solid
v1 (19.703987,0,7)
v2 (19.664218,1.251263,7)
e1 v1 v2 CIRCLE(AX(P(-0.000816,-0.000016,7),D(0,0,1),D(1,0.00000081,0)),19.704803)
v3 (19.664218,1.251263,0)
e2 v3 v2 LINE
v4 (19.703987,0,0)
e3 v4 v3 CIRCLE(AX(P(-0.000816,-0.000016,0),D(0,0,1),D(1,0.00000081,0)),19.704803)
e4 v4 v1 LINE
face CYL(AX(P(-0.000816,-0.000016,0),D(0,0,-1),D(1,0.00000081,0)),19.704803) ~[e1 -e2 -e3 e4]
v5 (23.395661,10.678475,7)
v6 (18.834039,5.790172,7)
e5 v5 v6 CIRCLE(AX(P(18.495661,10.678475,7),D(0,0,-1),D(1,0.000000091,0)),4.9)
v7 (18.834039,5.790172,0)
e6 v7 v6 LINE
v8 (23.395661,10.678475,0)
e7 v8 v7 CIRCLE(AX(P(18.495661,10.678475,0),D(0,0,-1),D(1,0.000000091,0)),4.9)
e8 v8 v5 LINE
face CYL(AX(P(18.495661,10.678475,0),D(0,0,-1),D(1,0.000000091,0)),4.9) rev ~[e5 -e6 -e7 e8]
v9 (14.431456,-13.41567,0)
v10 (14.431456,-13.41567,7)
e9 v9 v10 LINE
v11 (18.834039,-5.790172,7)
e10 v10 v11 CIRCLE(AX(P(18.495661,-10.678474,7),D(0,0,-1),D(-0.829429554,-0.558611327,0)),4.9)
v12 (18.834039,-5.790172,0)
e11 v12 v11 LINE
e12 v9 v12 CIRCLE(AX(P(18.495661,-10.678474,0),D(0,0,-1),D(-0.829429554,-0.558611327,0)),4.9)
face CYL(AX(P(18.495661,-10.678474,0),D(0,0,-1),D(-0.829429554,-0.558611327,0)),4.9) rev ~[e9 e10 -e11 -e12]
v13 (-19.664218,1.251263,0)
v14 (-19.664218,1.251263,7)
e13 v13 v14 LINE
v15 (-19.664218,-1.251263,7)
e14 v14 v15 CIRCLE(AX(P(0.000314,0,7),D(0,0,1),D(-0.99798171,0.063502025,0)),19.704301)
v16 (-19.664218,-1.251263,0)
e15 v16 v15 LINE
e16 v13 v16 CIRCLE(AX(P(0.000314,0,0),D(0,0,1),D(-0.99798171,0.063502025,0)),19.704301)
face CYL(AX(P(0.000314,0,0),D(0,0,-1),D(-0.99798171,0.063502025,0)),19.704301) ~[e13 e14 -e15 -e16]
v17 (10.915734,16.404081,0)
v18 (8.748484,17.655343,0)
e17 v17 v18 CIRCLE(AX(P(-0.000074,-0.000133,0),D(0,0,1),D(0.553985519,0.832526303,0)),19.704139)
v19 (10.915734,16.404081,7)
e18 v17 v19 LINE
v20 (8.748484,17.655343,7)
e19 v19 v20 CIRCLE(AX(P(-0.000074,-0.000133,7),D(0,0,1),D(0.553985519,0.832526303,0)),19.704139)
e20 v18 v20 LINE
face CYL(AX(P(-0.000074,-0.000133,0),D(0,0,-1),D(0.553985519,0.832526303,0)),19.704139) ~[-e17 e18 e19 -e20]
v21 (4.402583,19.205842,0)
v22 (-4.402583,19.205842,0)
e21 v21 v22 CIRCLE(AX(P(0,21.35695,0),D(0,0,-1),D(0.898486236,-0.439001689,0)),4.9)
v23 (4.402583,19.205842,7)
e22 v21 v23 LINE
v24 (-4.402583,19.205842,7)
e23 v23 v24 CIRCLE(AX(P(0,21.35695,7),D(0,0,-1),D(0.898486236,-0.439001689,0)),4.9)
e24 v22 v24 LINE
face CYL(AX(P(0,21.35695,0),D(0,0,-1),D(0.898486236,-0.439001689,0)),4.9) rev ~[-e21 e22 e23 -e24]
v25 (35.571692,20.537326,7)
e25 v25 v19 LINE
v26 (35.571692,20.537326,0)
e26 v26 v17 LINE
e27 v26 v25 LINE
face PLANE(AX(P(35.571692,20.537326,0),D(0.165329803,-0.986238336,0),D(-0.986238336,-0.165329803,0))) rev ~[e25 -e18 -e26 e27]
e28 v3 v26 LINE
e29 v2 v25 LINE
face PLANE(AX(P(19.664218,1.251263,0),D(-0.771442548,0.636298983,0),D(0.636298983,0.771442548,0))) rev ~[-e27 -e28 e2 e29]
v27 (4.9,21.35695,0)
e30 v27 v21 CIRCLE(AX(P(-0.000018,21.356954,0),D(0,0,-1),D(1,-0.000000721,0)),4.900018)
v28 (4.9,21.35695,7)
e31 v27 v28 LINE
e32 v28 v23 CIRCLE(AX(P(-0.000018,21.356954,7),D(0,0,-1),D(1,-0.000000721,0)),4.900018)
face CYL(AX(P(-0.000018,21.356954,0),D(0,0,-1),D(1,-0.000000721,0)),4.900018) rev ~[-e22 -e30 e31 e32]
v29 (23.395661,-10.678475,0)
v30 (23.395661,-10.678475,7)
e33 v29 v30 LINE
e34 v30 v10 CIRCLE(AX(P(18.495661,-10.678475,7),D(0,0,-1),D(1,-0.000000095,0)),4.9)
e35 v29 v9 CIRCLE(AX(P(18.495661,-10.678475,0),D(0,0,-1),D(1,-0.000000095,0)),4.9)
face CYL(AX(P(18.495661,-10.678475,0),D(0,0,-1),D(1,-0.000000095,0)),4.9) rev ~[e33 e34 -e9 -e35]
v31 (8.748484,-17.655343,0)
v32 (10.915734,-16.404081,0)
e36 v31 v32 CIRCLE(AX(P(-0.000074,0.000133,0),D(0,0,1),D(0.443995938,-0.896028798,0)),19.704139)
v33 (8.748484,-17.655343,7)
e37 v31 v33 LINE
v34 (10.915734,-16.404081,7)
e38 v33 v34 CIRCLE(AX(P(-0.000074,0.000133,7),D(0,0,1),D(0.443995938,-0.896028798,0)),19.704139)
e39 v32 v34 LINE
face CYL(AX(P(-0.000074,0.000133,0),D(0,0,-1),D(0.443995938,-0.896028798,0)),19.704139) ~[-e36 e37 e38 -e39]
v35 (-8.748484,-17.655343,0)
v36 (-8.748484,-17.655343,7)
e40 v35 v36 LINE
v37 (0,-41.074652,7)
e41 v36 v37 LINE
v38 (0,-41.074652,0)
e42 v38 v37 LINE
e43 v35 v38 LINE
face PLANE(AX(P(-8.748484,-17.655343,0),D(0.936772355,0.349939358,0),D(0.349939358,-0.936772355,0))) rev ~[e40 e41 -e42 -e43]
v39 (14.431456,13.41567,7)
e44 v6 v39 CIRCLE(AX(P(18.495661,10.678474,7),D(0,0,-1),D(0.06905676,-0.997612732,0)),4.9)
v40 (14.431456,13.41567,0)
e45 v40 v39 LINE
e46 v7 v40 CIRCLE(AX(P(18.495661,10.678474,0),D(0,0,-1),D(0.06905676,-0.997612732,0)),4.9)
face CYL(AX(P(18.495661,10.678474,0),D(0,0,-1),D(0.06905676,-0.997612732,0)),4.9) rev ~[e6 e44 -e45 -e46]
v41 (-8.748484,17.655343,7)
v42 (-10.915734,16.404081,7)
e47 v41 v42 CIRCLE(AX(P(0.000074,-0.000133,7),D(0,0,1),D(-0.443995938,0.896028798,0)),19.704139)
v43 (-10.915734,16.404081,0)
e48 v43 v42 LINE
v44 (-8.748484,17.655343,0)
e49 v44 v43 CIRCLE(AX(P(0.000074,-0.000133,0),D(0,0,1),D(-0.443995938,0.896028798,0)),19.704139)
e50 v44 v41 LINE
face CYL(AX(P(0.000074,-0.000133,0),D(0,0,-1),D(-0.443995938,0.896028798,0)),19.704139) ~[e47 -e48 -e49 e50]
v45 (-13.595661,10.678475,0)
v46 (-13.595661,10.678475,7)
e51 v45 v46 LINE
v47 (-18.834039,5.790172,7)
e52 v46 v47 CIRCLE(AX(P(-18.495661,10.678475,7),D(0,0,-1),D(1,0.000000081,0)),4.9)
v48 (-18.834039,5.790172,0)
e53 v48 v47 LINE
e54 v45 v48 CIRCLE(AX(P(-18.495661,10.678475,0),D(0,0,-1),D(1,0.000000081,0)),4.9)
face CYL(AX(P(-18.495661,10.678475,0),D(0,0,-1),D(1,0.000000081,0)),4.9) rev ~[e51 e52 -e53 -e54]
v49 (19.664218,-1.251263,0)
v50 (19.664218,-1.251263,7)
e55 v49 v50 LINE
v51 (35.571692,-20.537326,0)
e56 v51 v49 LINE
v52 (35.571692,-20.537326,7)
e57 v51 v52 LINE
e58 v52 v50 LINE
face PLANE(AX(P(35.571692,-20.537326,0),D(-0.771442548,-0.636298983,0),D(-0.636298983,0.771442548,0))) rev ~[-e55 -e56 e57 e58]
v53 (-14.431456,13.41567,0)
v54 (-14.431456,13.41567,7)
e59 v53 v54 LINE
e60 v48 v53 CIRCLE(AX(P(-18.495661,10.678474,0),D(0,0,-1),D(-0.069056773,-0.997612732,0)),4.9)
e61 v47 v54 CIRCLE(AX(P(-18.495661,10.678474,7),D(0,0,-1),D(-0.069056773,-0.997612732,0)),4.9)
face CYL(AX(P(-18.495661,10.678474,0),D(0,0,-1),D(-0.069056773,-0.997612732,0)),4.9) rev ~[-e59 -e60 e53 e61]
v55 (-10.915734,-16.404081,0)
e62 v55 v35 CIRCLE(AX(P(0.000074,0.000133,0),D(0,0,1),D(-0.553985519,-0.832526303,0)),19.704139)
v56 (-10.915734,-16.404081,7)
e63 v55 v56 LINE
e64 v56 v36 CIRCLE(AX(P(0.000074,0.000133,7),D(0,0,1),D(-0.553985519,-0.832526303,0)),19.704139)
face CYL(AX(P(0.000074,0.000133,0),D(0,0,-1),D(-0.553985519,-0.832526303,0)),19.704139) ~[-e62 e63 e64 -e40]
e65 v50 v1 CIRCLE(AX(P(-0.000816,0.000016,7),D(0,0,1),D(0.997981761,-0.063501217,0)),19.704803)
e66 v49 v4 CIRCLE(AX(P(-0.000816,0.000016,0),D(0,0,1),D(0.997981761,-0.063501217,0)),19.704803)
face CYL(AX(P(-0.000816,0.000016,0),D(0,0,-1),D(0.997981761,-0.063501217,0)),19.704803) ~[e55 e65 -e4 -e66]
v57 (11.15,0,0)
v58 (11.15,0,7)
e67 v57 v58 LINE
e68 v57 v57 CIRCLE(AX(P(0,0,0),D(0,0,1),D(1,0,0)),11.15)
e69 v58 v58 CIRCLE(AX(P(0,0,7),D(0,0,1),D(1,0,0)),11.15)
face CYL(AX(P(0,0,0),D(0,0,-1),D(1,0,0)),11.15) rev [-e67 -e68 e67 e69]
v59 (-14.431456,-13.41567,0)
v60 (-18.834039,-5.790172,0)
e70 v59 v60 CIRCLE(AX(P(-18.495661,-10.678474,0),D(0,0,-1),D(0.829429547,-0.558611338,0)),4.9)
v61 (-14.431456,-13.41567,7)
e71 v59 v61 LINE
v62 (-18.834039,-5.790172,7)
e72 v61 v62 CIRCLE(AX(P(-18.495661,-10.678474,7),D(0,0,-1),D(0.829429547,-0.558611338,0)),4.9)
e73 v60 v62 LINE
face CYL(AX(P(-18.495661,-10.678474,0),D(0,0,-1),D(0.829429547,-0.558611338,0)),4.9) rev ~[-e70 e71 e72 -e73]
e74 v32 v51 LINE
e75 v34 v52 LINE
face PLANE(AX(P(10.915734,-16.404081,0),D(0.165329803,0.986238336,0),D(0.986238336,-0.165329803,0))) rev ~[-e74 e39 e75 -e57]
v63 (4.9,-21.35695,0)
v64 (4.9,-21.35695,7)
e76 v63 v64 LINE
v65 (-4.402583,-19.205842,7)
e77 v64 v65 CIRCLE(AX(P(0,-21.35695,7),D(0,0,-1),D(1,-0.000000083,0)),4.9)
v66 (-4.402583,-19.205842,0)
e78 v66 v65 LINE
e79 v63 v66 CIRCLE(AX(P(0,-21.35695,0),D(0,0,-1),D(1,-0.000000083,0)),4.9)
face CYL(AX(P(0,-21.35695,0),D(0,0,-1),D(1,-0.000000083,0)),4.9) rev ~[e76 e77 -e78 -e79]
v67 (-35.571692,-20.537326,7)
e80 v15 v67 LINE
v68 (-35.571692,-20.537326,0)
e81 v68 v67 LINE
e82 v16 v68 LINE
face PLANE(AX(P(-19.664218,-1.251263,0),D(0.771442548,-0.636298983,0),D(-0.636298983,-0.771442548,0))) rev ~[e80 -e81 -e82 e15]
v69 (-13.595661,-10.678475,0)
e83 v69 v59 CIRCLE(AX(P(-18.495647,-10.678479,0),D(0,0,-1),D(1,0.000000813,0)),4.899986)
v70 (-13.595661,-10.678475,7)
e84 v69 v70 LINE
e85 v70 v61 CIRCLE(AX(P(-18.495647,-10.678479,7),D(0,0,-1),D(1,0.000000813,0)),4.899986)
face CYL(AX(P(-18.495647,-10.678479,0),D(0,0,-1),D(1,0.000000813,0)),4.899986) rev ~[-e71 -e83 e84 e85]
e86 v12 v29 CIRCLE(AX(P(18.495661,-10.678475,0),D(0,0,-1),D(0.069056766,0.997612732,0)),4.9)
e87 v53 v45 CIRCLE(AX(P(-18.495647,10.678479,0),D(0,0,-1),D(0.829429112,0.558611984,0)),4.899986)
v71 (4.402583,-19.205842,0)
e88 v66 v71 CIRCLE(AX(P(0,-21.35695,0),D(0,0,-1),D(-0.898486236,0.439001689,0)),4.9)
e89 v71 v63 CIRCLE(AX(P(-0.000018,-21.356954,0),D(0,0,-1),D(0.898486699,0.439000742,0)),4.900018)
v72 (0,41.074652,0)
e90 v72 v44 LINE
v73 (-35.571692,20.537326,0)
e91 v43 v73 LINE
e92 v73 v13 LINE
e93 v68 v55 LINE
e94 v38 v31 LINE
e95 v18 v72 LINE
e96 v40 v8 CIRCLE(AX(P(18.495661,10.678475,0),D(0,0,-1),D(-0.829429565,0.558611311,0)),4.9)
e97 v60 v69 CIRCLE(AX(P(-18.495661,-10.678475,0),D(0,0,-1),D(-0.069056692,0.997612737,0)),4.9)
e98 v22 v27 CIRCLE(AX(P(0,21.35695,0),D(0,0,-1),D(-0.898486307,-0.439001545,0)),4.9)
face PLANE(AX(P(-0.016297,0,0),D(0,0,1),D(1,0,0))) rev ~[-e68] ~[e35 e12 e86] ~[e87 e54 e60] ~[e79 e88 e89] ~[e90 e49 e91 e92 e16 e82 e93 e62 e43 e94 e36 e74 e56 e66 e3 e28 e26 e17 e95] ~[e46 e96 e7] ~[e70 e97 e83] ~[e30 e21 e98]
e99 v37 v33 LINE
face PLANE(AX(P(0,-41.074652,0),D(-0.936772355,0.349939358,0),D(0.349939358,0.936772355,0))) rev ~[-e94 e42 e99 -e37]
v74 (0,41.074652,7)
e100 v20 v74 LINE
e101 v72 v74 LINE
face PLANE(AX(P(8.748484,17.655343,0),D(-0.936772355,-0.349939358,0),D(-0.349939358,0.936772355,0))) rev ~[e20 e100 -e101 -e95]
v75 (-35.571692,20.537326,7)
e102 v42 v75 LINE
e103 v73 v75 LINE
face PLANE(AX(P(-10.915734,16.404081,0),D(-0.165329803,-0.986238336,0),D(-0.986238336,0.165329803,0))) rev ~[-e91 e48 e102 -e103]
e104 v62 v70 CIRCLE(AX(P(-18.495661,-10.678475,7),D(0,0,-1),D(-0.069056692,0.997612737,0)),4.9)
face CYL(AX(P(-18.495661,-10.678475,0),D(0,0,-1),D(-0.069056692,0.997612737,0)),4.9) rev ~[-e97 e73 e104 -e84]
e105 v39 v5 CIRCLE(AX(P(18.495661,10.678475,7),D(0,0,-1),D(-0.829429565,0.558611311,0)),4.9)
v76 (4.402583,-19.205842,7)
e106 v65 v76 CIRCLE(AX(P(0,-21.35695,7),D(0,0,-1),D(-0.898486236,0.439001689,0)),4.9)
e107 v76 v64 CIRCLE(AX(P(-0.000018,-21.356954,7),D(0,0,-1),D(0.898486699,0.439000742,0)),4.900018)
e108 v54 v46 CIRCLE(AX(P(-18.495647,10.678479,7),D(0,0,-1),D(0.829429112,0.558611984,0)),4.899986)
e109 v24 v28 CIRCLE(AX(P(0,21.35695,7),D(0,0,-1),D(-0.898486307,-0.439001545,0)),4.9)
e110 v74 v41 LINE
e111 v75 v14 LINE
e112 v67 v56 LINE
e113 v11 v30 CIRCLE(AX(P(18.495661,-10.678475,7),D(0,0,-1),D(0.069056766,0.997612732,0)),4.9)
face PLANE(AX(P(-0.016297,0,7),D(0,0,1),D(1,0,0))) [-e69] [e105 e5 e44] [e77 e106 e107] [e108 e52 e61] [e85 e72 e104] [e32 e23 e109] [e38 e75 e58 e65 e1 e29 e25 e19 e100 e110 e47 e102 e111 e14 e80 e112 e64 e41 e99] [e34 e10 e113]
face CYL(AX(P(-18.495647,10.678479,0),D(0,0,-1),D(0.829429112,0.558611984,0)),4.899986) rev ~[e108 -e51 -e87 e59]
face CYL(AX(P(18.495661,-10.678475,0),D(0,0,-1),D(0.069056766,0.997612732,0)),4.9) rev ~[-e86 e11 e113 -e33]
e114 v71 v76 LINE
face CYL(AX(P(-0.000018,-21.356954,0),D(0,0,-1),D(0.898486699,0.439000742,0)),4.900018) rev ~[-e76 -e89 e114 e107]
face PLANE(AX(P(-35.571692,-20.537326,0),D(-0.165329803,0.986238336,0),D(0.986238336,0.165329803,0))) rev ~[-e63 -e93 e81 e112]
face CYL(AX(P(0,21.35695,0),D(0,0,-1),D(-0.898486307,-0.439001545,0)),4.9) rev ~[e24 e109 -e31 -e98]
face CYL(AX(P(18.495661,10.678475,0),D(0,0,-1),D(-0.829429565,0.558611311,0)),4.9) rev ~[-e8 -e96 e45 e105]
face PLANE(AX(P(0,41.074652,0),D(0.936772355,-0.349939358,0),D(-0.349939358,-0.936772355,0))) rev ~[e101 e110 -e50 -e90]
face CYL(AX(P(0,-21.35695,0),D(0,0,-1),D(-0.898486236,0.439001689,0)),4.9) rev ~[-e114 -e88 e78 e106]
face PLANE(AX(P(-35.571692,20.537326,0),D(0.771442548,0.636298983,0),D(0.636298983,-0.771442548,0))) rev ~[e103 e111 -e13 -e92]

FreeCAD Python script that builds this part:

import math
import FreeCAD as App
import Part
import Sketcher

doc = App.newDocument("Part")
body = doc.addObject("PartDesign::Body", "Body")

sketch1 = doc.addObject("Sketcher::SketchObject", "Sketch")
body.addObject(sketch1)
sketch1.AttachmentSupport = (doc.XY_Plane, [""])
sketch1.MapMode = "FlatFace"
sketch1.addGeometry([
    Part.ArcOfCircle(Part.Circle(App.Vector(-0.000816, 0.000016, 0), App.Vector(0, 0, 1), 19.704803), math.radians(-3.640801), math.radians(-0.000046)),
    Part.ArcOfCircle(Part.Circle(App.Vector(-0.000816, -0.000016, 0), App.Vector(0, 0, 1), 19.704803), math.radians(0.000046), math.radians(3.640801)),
    Part.LineSegment(App.Vector(19.664218, 1.251263, 0), App.Vector(35.571692, 20.537326, 0)),
    Part.LineSegment(App.Vector(35.571692, 20.537326, 0), App.Vector(10.915734, 16.404081, 0)),
    Part.ArcOfCircle(Part.Circle(App.Vector(-0.000074, -0.000133, 0), App.Vector(0, 0, 1), 19.704139), math.radians(56.359132), math.radians(63.640883)),
    Part.LineSegment(App.Vector(8.748484, 17.655343, 0), App.Vector(0, 41.074652, 0)),
    Part.LineSegment(App.Vector(0, 41.074652, 0), App.Vector(-8.748484, 17.655343, 0)),
    Part.ArcOfCircle(Part.Circle(App.Vector(0.000074, -0.000133, 0), App.Vector(0, 0, 1), 19.704139), math.radians(116.359117), math.radians(123.640868)),
    Part.LineSegment(App.Vector(-10.915734, 16.404081, 0), App.Vector(-35.571692, 20.537326, 0)),
    Part.LineSegment(App.Vector(-35.571692, 20.537326, 0), App.Vector(-19.664218, 1.251263, 0)),
    Part.ArcOfCircle(Part.Circle(App.Vector(0.000314, 0, 0), App.Vector(0, 0, 1), 19.704301), math.radians(176.359152), math.radians(183.640848)),
    Part.LineSegment(App.Vector(-19.664218, -1.251263, 0), App.Vector(-35.571692, -20.537326, 0)),
    Part.LineSegment(App.Vector(-35.571692, -20.537326, 0), App.Vector(-10.915734, -16.404081, 0)),
    Part.ArcOfCircle(Part.Circle(App.Vector(0.000074, 0.000133, 0), App.Vector(0, 0, 1), 19.704139), math.radians(-123.640868), math.radians(-116.359117)),
    Part.LineSegment(App.Vector(-8.748484, -17.655343, 0), App.Vector(0, -41.074652, 0)),
    Part.LineSegment(App.Vector(0, -41.074652, 0), App.Vector(8.748484, -17.655343, 0)),
    Part.ArcOfCircle(Part.Circle(App.Vector(-0.000074, 0.000133, 0), App.Vector(0, 0, 1), 19.704139), math.radians(-63.640883), math.radians(-56.359132)),
    Part.LineSegment(App.Vector(10.915734, -16.404081, 0), App.Vector(35.571692, -20.537326, 0)),
    Part.LineSegment(App.Vector(35.571692, -20.537326, 0), App.Vector(19.664218, -1.251263, 0)),
    Part.ArcOfCircle(Part.Circle(App.Vector(0, -21.35695, 0), App.Vector(0, 0, 1), 4.9), math.radians(26.040202), math.radians(153.959798)),
    Part.ArcOfCircle(Part.Circle(App.Vector(-0.000018, -21.356954, 0), App.Vector(0, 0, 1), 4.900018), math.radians(0.000041), math.radians(26.040142)),
    Part.ArcOfCircle(Part.Circle(App.Vector(0, -21.35695, 0), App.Vector(0, 0, 1), 4.9), math.radians(153.959807), math.radians(359.999995)),
    Part.ArcOfCircle(Part.Circle(App.Vector(18.495661, -10.678474, 0), App.Vector(0, 0, 1), 4.9), math.radians(86.040188), math.radians(213.959816)),
    Part.ArcOfCircle(Part.Circle(App.Vector(18.495661, -10.678475, 0), App.Vector(0, 0, 1), 4.9), math.radians(-0.000005), math.radians(86.040187)),
    Part.ArcOfCircle(Part.Circle(App.Vector(18.495661, -10.678475, 0), App.Vector(0, 0, 1), 4.9), math.radians(-146.040185), math.radians(-0.000005)),
    Part.ArcOfCircle(Part.Circle(App.Vector(-18.495661, -10.678475, 0), App.Vector(0, 0, 1), 4.9), math.radians(-0.000005), math.radians(93.959809)),
    Part.ArcOfCircle(Part.Circle(App.Vector(-18.495647, -10.678479, 0), App.Vector(0, 0, 1), 4.899986), math.radians(-33.959861), math.radians(0.000047)),
    Part.ArcOfCircle(Part.Circle(App.Vector(-18.495661, -10.678474, 0), App.Vector(0, 0, 1), 4.9), math.radians(93.959813), math.radians(326.040183)),
    Part.ArcOfCircle(Part.Circle(App.Vector(-18.495647, 10.678479, 0), App.Vector(0, 0, 1), 4.899986), math.radians(-0.000047), math.radians(33.959861)),
    Part.ArcOfCircle(Part.Circle(App.Vector(-18.495661, 10.678475, 0), App.Vector(0, 0, 1), 4.9), math.radians(-93.959809), math.radians(0.000005)),
    Part.ArcOfCircle(Part.Circle(App.Vector(-18.495661, 10.678474, 0), App.Vector(0, 0, 1), 4.9), math.radians(33.959817), math.radians(266.040187)),
    Part.ArcOfCircle(Part.Circle(App.Vector(0, 21.35695, 0), App.Vector(0, 0, 1), 4.9), math.radians(-153.959798), math.radians(-26.040202)),
    Part.ArcOfCircle(Part.Circle(App.Vector(0, 21.35695, 0), App.Vector(0, 0, 1), 4.9), math.radians(0.000005), math.radians(206.040193)),
    Part.ArcOfCircle(Part.Circle(App.Vector(-0.000018, 21.356954, 0), App.Vector(0, 0, 1), 4.900018), math.radians(-26.040142), math.radians(-0.000041)),
    Part.ArcOfCircle(Part.Circle(App.Vector(18.495661, 10.678474, 0), App.Vector(0, 0, 1), 4.9), math.radians(146.040184), math.radians(273.959812)),
    Part.ArcOfCircle(Part.Circle(App.Vector(18.495661, 10.678475, 0), App.Vector(0, 0, 1), 4.9), math.radians(0.000005), math.radians(146.040185)),
    Part.ArcOfCircle(Part.Circle(App.Vector(18.495661, 10.678475, 0), App.Vector(0, 0, 1), 4.9), math.radians(-86.040187), math.radians(0.000005)),
    Part.Circle(App.Vector(0, 0, 0), App.Vector(0, 0, 1), 11.15),
], False)
sketch1.addConstraint([
    Sketcher.Constraint("Tangent", 0, 2, 1, 1),
    Sketcher.Constraint("Coincident", 1, 2, 2, 1),
    Sketcher.Constraint("Coincident", 2, 2, 3, 1),
    Sketcher.Constraint("Coincident", 3, 2, 4, 1),
    Sketcher.Constraint("Coincident", 4, 2, 5, 1),
    Sketcher.Constraint("Coincident", 5, 2, 6, 1),
    Sketcher.Constraint("Coincident", 6, 2, 7, 1),
    Sketcher.Constraint("Coincident", 7, 2, 8, 1),
    Sketcher.Constraint("Coincident", 8, 2, 9, 1),
    Sketcher.Constraint("Coincident", 9, 2, 10, 1),
    Sketcher.Constraint("Coincident", 10, 2, 11, 1),
    Sketcher.Constraint("Coincident", 11, 2, 12, 1),
    Sketcher.Constraint("Coincident", 12, 2, 13, 1),
    Sketcher.Constraint("Coincident", 13, 2, 14, 1),
    Sketcher.Constraint("Coincident", 14, 2, 15, 1),
    Sketcher.Constraint("Coincident", 15, 2, 16, 1),
    Sketcher.Constraint("Coincident", 16, 2, 17, 1),
    Sketcher.Constraint("Coincident", 17, 2, 18, 1),
    Sketcher.Constraint("Coincident", 18, 2, 0, 1),
    Sketcher.Constraint("Tangent", 19, 1, 20, 2),
    Sketcher.Constraint("Tangent", 20, 1, 21, 2),
    Sketcher.Constraint("Tangent", 21, 1, 19, 2),
    Sketcher.Constraint("Tangent", 22, 1, 23, 2),
    Sketcher.Constraint("Tangent", 23, 1, 24, 2),
    Sketcher.Constraint("Tangent", 24, 1, 22, 2),
    Sketcher.Constraint("Tangent", 25, 1, 26, 2),
    Sketcher.Constraint("Tangent", 26, 1, 27, 2),
    Sketcher.Constraint("Tangent", 27, 1, 25, 2),
    Sketcher.Constraint("Tangent", 28, 1, 29, 2),
    Sketcher.Constraint("Tangent", 29, 1, 30, 2),
    Sketcher.Constraint("Tangent", 30, 1, 28, 2),
    Sketcher.Constraint("Tangent", 31, 1, 32, 2),
    Sketcher.Constraint("Tangent", 32, 1, 33, 2),
    Sketcher.Constraint("Tangent", 33, 1, 31, 2),
    Sketcher.Constraint("Tangent", 34, 1, 35, 2),
    Sketcher.Constraint("Tangent", 35, 1, 36, 2),
    Sketcher.Constraint("Tangent", 36, 1, 34, 2),
    Sketcher.Constraint("Coincident", 37, 3, -1, 1),
    Sketcher.Constraint("Equal", 0, 1),
    Sketcher.Constraint("Equal", 4, 7),
    Sketcher.Constraint("Equal", 7, 13),
    Sketcher.Constraint("Equal", 13, 16),
    Sketcher.Constraint("Equal", 21, 22),
    Sketcher.Constraint("Equal", 24, 25),
    Sketcher.Constraint("Equal", 26, 28),
    Sketcher.Constraint("Equal", 30, 31),
    Sketcher.Constraint("Equal", 32, 34),
    Sketcher.Constraint("Symmetric", 4, 3, 13, 3, -1, 1),
    Sketcher.Constraint("Symmetric", 7, 3, 16, 3, -1, 1),
    Sketcher.Constraint("Symmetric", 22, 3, 29, 3, -1, 1),
    Sketcher.Constraint("Symmetric", 19, 3, 31, 3, -1, 1),
    Sketcher.Constraint("Symmetric", 25, 3, 34, 3, -1, 1),
    Sketcher.Constraint("Symmetric", 1, 2, 10, 2, -1, 1),
    Sketcher.Constraint("Symmetric", 2, 2, 11, 2, -1, 1),
    Sketcher.Constraint("Symmetric", 5, 2, 14, 2, -1, 1),
    Sketcher.Constraint("Symmetric", 8, 2, 17, 2, -1, 1),
    Sketcher.Constraint("Symmetric", 9, 2, 18, 2, -1, 1),
    Sketcher.Constraint("Symmetric", 4, 3, 7, 3, -2),
    Sketcher.Constraint("Symmetric", 22, 3, 25, 3, -2),
    Sketcher.Constraint("Symmetric", 2, 2, 8, 2, -2),
    Sketcher.Constraint("Symmetric", 1, 2, 9, 2, -2),
    Sketcher.Constraint("Symmetric", 19, 1, 21, 1, -2),
    Sketcher.Constraint("PointOnObject", 0, 2, -1),
    Sketcher.Constraint("PointOnObject", 5, 2, -2),
    Sketcher.Constraint("Parallel", 3, 12),
    Sketcher.Constraint("Parallel", 5, 14),
    Sketcher.Constraint("Parallel", 6, 15),
    Sketcher.Constraint("Parallel", 8, 17),
    Sketcher.Constraint("Horizontal", 4, 2, 6, 2),
    Sketcher.Constraint("Horizontal", 3, 2, 7, 2),
    Sketcher.Constraint("Horizontal", 21, 3, 20, 1),
    Sketcher.Constraint("Horizontal", 27, 3, 23, 1),
    Sketcher.Constraint("Horizontal", 23, 1, 25, 1),
    Sketcher.Constraint("Horizontal", 24, 1, 26, 1),
    Sketcher.Constraint("Horizontal", 22, 1, 27, 1),
    Sketcher.Constraint("Horizontal", 36, 3, 28, 1),
    Sketcher.Constraint("Horizontal", 31, 3, 32, 1),
    Sketcher.Constraint("Horizontal", 31, 1, 33, 1),
    Sketcher.Constraint("Horizontal", 30, 1, 34, 1),
    Sketcher.Constraint("Horizontal", 28, 1, 35, 1),
    Sketcher.Constraint("Horizontal", 29, 1, 36, 1),
    Sketcher.Constraint("Vertical", 27, 1, 29, 1),
    Sketcher.Constraint("Vertical", 26, 1, 30, 1),
    Sketcher.Constraint("Vertical", 21, 1, 31, 1),
    Sketcher.Constraint("Equal", 2, 3),
    Sketcher.Constraint("Equal", 3, 5),
    Sketcher.Constraint("Diameter", 37, 22.3),
    Sketcher.Constraint("Radius", 19, 4.9),
    Sketcher.Constraint("Distance", 2, 24.999999),
    Sketcher.Constraint("Radius", 10, 19.704301),
    Sketcher.Constraint("Radius", 4, 19.704139),
    Sketcher.Constraint("Radius", 0, 19.704803),
    Sketcher.Constraint("DistanceY", 19, 3, -1, 1, 21.35695),
    Sketcher.Constraint("DistanceX", -1, 1, 22, 3, 18.495661),
    Sketcher.Constraint("DistanceY", 26, 3, -1, 1, 10.678479),
    Sketcher.Constraint("DistanceY", -1, 1, 3, 2, 16.404081),
    Sketcher.Constraint("DistanceX", 9, 2, -1, 1, 19.664218),
    Sketcher.Constraint("DistanceX", -1, 1, 22, 1, 18.834039),
    Sketcher.Constraint("DistanceY", 24, 1, -1, 1, 13.41567),
    Sketcher.Constraint("DistanceX", 0, 3, -1, 1, 0.000816),
    Sketcher.Constraint("DistanceY", 4, 3, -1, 1, 0.000133),
    Sketcher.Constraint("DistanceX", -1, 1, 2, 2, 35.571692),
    Sketcher.Constraint("DistanceX", -1, 1, 4, 2, 8.748484),
    Sketcher.Constraint("DistanceX", -1, 1, 19, 1, 4.402583),
])
pad1 = doc.addObject("PartDesign::Pad", "Pad")
body.addObject(pad1)
pad1.Profile = sketch1
pad1.Length = 7

doc.recompute()
